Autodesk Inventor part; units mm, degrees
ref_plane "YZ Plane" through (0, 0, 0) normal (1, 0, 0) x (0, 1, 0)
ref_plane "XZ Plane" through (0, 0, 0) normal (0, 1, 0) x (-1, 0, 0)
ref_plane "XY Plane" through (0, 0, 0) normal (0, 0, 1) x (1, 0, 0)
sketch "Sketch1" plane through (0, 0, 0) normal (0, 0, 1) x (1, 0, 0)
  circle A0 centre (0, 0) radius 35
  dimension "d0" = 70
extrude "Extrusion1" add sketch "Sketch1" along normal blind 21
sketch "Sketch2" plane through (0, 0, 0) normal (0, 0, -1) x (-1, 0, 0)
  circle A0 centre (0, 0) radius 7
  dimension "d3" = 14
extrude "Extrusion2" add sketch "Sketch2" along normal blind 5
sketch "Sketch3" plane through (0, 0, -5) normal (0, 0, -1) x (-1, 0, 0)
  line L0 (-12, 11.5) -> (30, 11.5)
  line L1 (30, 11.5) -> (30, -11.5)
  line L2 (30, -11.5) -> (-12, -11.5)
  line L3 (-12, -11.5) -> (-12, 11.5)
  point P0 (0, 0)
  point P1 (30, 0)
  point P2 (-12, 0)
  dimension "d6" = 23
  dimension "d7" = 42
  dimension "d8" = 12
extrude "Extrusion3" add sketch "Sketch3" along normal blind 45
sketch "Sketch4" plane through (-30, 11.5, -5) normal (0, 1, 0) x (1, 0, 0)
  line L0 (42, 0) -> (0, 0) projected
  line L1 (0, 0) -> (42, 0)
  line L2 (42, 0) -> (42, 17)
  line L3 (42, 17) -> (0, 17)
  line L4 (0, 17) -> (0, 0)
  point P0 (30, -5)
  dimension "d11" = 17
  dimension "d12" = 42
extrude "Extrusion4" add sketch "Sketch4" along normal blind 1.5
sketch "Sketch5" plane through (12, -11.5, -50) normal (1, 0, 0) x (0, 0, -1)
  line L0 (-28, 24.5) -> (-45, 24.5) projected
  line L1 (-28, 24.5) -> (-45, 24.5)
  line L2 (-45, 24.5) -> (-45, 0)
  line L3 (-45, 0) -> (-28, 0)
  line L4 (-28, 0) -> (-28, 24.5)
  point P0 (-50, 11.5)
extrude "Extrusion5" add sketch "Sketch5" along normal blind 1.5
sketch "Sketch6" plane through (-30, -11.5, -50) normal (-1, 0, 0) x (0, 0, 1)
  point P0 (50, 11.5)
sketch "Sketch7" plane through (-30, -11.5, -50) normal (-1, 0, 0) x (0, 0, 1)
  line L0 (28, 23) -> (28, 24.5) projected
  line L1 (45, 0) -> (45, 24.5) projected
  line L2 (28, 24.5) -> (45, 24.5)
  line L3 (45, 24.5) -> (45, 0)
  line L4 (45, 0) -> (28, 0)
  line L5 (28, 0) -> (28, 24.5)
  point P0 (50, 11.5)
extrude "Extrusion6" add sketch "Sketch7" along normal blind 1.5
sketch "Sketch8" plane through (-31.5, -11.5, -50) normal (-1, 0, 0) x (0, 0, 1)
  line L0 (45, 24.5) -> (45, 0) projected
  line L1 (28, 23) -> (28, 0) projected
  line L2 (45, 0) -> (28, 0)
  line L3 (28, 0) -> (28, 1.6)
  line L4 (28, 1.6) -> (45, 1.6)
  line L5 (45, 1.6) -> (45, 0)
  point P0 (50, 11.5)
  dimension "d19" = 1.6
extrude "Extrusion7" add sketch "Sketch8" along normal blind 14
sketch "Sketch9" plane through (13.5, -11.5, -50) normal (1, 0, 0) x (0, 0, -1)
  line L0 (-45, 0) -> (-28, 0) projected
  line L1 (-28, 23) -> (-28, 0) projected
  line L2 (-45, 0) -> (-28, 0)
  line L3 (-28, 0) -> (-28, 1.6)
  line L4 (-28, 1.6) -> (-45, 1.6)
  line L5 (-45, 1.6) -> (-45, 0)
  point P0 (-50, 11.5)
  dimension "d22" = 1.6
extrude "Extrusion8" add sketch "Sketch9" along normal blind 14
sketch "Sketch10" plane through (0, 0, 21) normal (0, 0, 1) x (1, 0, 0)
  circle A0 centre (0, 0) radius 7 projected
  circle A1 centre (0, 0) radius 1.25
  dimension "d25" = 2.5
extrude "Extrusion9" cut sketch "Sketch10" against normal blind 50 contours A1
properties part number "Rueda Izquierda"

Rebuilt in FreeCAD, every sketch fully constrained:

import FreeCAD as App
import Part
import Sketcher

V = App.Vector

doc = App.newDocument("Part")
body = doc.addObject("PartDesign::Body", "Body")

# Sketch on XY plane
sketch1 = doc.addObject("Sketcher::SketchObject", "Sketch")
body.addObject(sketch1)
sketch1.AttachmentSupport = (doc.XY_Plane, [""])
sketch1.MapMode = "FlatFace"
sketch1.addGeometry(Part.Circle(V(0, 0, 0), V(0, 0, 1), 35), False)
sketch1.addConstraint(Sketcher.Constraint("Coincident", 0, 3, -1, 1))
sketch1.addConstraint(Sketcher.Constraint("Diameter", 0, 70.0))
pad1 = doc.addObject("PartDesign::Pad", "Pad")
body.addObject(pad1)
pad1.Profile = sketch1
pad1.Length = 21

# Sketch on XY plane
sketch2 = doc.addObject("Sketcher::SketchObject", "Sketch001")
body.addObject(sketch2)
sketch2.AttachmentSupport = (doc.XY_Plane, [""])
sketch2.MapMode = "FlatFace"
sketch2.addGeometry(Part.Circle(V(0, 0, 0), V(0, 0, 1), 7), False)
sketch2.addConstraint(Sketcher.Constraint("Coincident", 0, 3, -1, 1))
sketch2.addConstraint(Sketcher.Constraint("Diameter", 0, 14.0))
pad2 = doc.addObject("PartDesign::Pad", "Pad001")
body.addObject(pad2)
pad2.Profile = sketch2
pad2.Length = 5
pad2.Reversed = True

# Sketch on XY plane
sketch3 = doc.addObject("Sketcher::SketchObject", "Sketch002")
body.addObject(sketch3)
sketch3.AttachmentSupport = (doc.XY_Plane, [""])
sketch3.MapMode = "FlatFace"
sketch3.AttachmentOffset = App.Placement(V(0, 0, -5), App.Rotation())
sketch3.addGeometry(Part.LineSegment(V(-30, 12, 0), V(12, 12, 0)), False)
sketch3.addGeometry(Part.LineSegment(V(12, 12, 0), V(12, -12, 0)), False)
sketch3.addGeometry(Part.LineSegment(V(12, -12, 0), V(-30, -12, 0)), False)
sketch3.addGeometry(Part.LineSegment(V(-30, -12, 0), V(-30, 12, 0)), False)
sketch3.addConstraint(Sketcher.Constraint("Coincident", 0, 2, 1, 1))
sketch3.addConstraint(Sketcher.Constraint("Coincident", 1, 2, 2, 1))
sketch3.addConstraint(Sketcher.Constraint("Coincident", 2, 2, 3, 1))
sketch3.addConstraint(Sketcher.Constraint("Coincident", 3, 2, 0, 1))
sketch3.addConstraint(Sketcher.Constraint("Horizontal", 0))
sketch3.addConstraint(Sketcher.Constraint("Vertical", 1))
sketch3.addConstraint(Sketcher.Constraint("Horizontal", 2))
sketch3.addConstraint(Sketcher.Constraint("Vertical", 3))
sketch3.addConstraint(Sketcher.Constraint("DistanceX", 0, 1, 0, 2, 42.0))
sketch3.addConstraint(Sketcher.Constraint("DistanceY", 1, 2, 1, 1, 23.0))
sketch3.addConstraint(Sketcher.Constraint("DistanceX", -1, 1, 0, 2, 12.0))
sketch3.addConstraint(Sketcher.Constraint("DistanceY", -1, 1, 0, 2, 11.5))
pad3 = doc.addObject("PartDesign::Pad", "Pad002")
body.addObject(pad3)
pad3.Profile = sketch3
pad3.Length = 45
pad3.Reversed = True

# Sketch on XZ plane
sketch4 = doc.addObject("Sketcher::SketchObject", "Sketch003")
body.addObject(sketch4)
sketch4.AttachmentSupport = (doc.XZ_Plane, [""])
sketch4.MapMode = "FlatFace"
sketch4.AttachmentOffset = App.Placement(V(0, 0, -11.5), App.Rotation())
sketch4.addGeometry(Part.LineSegment(V(-30, -5, 0), V(12, -5, 0)), False)
sketch4.addGeometry(Part.LineSegment(V(12, -5, 0), V(12, -22, 0)), False)
sketch4.addGeometry(Part.LineSegment(V(12, -22, 0), V(-30, -22, 0)), False)
sketch4.addGeometry(Part.LineSegment(V(-30, -22, 0), V(-30, -5, 0)), False)
sketch4.addConstraint(Sketcher.Constraint("Coincident", 0, 2, 1, 1))
sketch4.addConstraint(Sketcher.Constraint("Coincident", 1, 2, 2, 1))
sketch4.addConstraint(Sketcher.Constraint("Coincident", 2, 2, 3, 1))
sketch4.addConstraint(Sketcher.Constraint("Coincident", 3, 2, 0, 1))
sketch4.addConstraint(Sketcher.Constraint("Horizontal", 0))
sketch4.addConstraint(Sketcher.Constraint("Vertical", 1))
sketch4.addConstraint(Sketcher.Constraint("Horizontal", 2))
sketch4.addConstraint(Sketcher.Constraint("Vertical", 3))
sketch4.addConstraint(Sketcher.Constraint("DistanceX", 0, 1, 0, 2, 42.0))
sketch4.addConstraint(Sketcher.Constraint("DistanceY", 1, 2, 1, 1, 17.0))
sketch4.addConstraint(Sketcher.Constraint("DistanceX", -1, 1, 0, 2, 12.0))
sketch4.addConstraint(Sketcher.Constraint("DistanceY", 0, 2, -1, 1, 5.0))
pad4 = doc.addObject("PartDesign::Pad", "Pad003")
body.addObject(pad4)
pad4.Profile = sketch4
pad4.Length = 1.5
pad4.Reversed = True

# Sketch on YZ plane
sketch5 = doc.addObject("Sketcher::SketchObject", "Sketch004")
body.addObject(sketch5)
sketch5.AttachmentSupport = (doc.YZ_Plane, [""])
sketch5.MapMode = "FlatFace"
sketch5.AttachmentOffset = App.Placement(V(0, 0, 12), App.Rotation())
sketch5.addGeometry(Part.LineSegment(V(-12, -22, 0), V(13, -22, 0)), False)
sketch5.addGeometry(Part.LineSegment(V(13, -22, 0), V(13, -5, 0)), False)
sketch5.addGeometry(Part.LineSegment(V(13, -5, 0), V(-12, -5, 0)), False)
sketch5.addGeometry(Part.LineSegment(V(-12, -5, 0), V(-12, -22, 0)), False)
sketch5.addConstraint(Sketcher.Constraint("Coincident", 0, 2, 1, 1))
sketch5.addConstraint(Sketcher.Constraint("Coincident", 1, 2, 2, 1))
sketch5.addConstraint(Sketcher.Constraint("Coincident", 2, 2, 3, 1))
sketch5.addConstraint(Sketcher.Constraint("Coincident", 3, 2, 0, 1))
sketch5.addConstraint(Sketcher.Constraint("Horizontal", 0))
sketch5.addConstraint(Sketcher.Constraint("Vertical", 1))
sketch5.addConstraint(Sketcher.Constraint("Horizontal", 2))
sketch5.addConstraint(Sketcher.Constraint("Vertical", 3))
sketch5.addConstraint(Sketcher.Constraint("DistanceY", 1, 1, 1, 2, 17.0))
sketch5.addConstraint(Sketcher.Constraint("DistanceX", 0, 1, 0, 2, 24.5))
sketch5.addConstraint(Sketcher.Constraint("DistanceX", -1, 1, 0, 2, 13.0))
sketch5.addConstraint(Sketcher.Constraint("DistanceY", 0, 2, -1, 1, 22.0))
pad5 = doc.addObject("PartDesign::Pad", "Pad004")
body.addObject(pad5)
pad5.Profile = sketch5
pad5.Length = 1.5

# Sketch on YZ plane
sketch6 = doc.addObject("Sketcher::SketchObject", "Sketch005")
body.addObject(sketch6)
sketch6.AttachmentSupport = (doc.YZ_Plane, [""])
sketch6.MapMode = "FlatFace"
sketch6.AttachmentOffset = App.Placement(V(0, 0, -30), App.Rotation())
sketch6.addGeometry(Part.LineSegment(V(13, -22, 0), V(-12, -22, 0)), False)
sketch6.addGeometry(Part.LineSegment(V(-12, -22, 0), V(-12, -5, 0)), False)
sketch6.addGeometry(Part.LineSegment(V(-12, -5, 0), V(13, -5, 0)), False)
sketch6.addGeometry(Part.LineSegment(V(13, -5, 0), V(13, -22, 0)), False)
sketch6.addConstraint(Sketcher.Constraint("Coincident", 0, 2, 1, 1))
sketch6.addConstraint(Sketcher.Constraint("Coincident", 1, 2, 2, 1))
sketch6.addConstraint(Sketcher.Constraint("Coincident", 2, 2, 3, 1))
sketch6.addConstraint(Sketcher.Constraint("Coincident", 3, 2, 0, 1))
sketch6.addConstraint(Sketcher.Constraint("Horizontal", 0))
sketch6.addConstraint(Sketcher.Constraint("Vertical", 1))
sketch6.addConstraint(Sketcher.Constraint("Horizontal", 2))
sketch6.addConstraint(Sketcher.Constraint("Vertical", 3))
sketch6.addConstraint(Sketcher.Constraint("DistanceY", 1, 1, 1, 2, 17.0))
sketch6.addConstraint(Sketcher.Constraint("DistanceX", 0, 2, 0, 1, 24.5))
sketch6.addConstraint(Sketcher.Constraint("DistanceY", 0, 2, -1, 1, 22.0))
sketch6.addConstraint(Sketcher.Constraint("DistanceX", -1, 1, 2, 2, 13.0))
pad6 = doc.addObject("PartDesign::Pad", "Pad005")
body.addObject(pad6)
pad6.Profile = sketch6
pad6.Length = 1.5
pad6.Reversed = True

# Sketch on YZ plane
sketch7 = doc.addObject("Sketcher::SketchObject", "Sketch006")
body.addObject(sketch7)
sketch7.AttachmentSupport = (doc.YZ_Plane, [""])
sketch7.MapMode = "FlatFace"
sketch7.AttachmentOffset = App.Placement(V(0, 0, -31.5), App.Rotation())
sketch7.addGeometry(Part.LineSegment(V(-11.5, -5, 0), V(-9.9, -5, 0)), False)
sketch7.addGeometry(Part.LineSegment(V(-9.9, -5, 0), V(-9.9, -22, 0)), False)
sketch7.addGeometry(Part.LineSegment(V(-9.9, -22, 0), V(-11.5, -22, 0)), False)
sketch7.addGeometry(Part.LineSegment(V(-11.5, -22, 0), V(-11.5, -5, 0)), False)
sketch7.addConstraint(Sketcher.Constraint("Coincident", 0, 2, 1, 1))
sketch7.addConstraint(Sketcher.Constraint("Coincident", 1, 2, 2, 1))
sketch7.addConstraint(Sketcher.Constraint("Coincident", 2, 2, 3, 1))
sketch7.addConstraint(Sketcher.Constraint("Coincident", 3, 2, 0, 1))
sketch7.addConstraint(Sketcher.Constraint("Horizontal", 0))
sketch7.addConstraint(Sketcher.Constraint("Vertical", 1))
sketch7.addConstraint(Sketcher.Constraint("Horizontal", 2))
sketch7.addConstraint(Sketcher.Constraint("Vertical", 3))
sketch7.addConstraint(Sketcher.Constraint("DistanceX", 0, 1, 0, 2, 1.6))
sketch7.addConstraint(Sketcher.Constraint("DistanceY", 1, 2, 1, 1, 17.0))
sketch7.addConstraint(Sketcher.Constraint("DistanceY", 0, 2, -1, 1, 5.0))
sketch7.addConstraint(Sketcher.Constraint("DistanceX", 0, 2, -1, 1, 9.9))
pad7 = doc.addObject("PartDesign::Pad", "Pad006")
body.addObject(pad7)
pad7.Profile = sketch7
pad7.Length = 14
pad7.Reversed = True

# Sketch on YZ plane
sketch8 = doc.addObject("Sketcher::SketchObject", "Sketch007")
body.addObject(sketch8)
sketch8.AttachmentSupport = (doc.YZ_Plane, [""])
sketch8.MapMode = "FlatFace"
sketch8.AttachmentOffset = App.Placement(V(0, 0, 13.5), App.Rotation())
sketch8.addGeometry(Part.LineSegment(V(-9.9, -5, 0), V(-11.5, -5, 0)), False)
sketch8.addGeometry(Part.LineSegment(V(-11.5, -5, 0), V(-11.5, -22, 0)), False)
sketch8.addGeometry(Part.LineSegment(V(-11.5, -22, 0), V(-9.9, -22, 0)), False)
sketch8.addGeometry(Part.LineSegment(V(-9.9, -22, 0), V(-9.9, -5, 0)), False)
sketch8.addConstraint(Sketcher.Constraint("Coincident", 0, 2, 1, 1))
sketch8.addConstraint(Sketcher.Constraint("Coincident", 1, 2, 2, 1))
sketch8.addConstraint(Sketcher.Constraint("Coincident", 2, 2, 3, 1))
sketch8.addConstraint(Sketcher.Constraint("Coincident", 3, 2, 0, 1))
sketch8.addConstraint(Sketcher.Constraint("Horizontal", 0))
sketch8.addConstraint(Sketcher.Constraint("Vertical", 1))
sketch8.addConstraint(Sketcher.Constraint("Horizontal", 2))
sketch8.addConstraint(Sketcher.Constraint("Vertical", 3))
sketch8.addConstraint(Sketcher.Constraint("DistanceX", 0, 2, 0, 1, 1.6))
sketch8.addConstraint(Sketcher.Constraint("DistanceY", 1, 2, 1, 1, 17.0))
sketch8.addConstraint(Sketcher.Constraint("DistanceY", 0, 2, -1, 1, 5.0))
sketch8.addConstraint(Sketcher.Constraint("DistanceX", 0, 2, -1, 1, 11.5))
pad8 = doc.addObject("PartDesign::Pad", "Pad007")
body.addObject(pad8)
pad8.Profile = sketch8
pad8.Length = 14

# Sketch on XY plane
sketch9 = doc.addObject("Sketcher::SketchObject", "Sketch008")
body.addObject(sketch9)
sketch9.AttachmentSupport = (doc.XY_Plane, [""])
sketch9.MapMode = "FlatFace"
sketch9.AttachmentOffset = App.Placement(V(0, 0, 21), App.Rotation())
sketch9.addGeometry(Part.Circle(V(0, 0, 0), V(0, 0, 1), 1.2), False)
sketch9.addConstraint(Sketcher.Constraint("Coincident", 0, 3, -1, 1))
sketch9.addConstraint(Sketcher.Constraint("Diameter", 0, 2.5))
pocket1 = doc.addObject("PartDesign::Pocket", "Pocket")
body.addObject(pocket1)
pocket1.Profile = sketch9
pocket1.Length = 50

doc.recompute()
